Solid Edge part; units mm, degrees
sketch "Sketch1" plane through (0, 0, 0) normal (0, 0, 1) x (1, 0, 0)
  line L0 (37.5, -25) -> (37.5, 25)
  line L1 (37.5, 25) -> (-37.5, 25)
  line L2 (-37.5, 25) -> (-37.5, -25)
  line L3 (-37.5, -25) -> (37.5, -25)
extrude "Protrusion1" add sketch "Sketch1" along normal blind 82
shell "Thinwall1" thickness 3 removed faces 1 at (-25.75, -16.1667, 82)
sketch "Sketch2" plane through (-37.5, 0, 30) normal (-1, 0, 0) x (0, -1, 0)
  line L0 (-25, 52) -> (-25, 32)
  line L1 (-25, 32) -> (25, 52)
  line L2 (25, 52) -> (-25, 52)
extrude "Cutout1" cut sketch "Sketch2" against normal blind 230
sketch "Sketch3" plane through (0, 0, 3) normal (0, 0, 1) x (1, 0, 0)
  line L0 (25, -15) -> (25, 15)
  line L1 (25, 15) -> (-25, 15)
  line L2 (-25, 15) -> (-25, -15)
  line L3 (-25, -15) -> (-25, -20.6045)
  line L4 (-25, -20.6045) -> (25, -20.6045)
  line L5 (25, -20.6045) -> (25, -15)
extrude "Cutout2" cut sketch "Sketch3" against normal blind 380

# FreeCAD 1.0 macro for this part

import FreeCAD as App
import Part
import Sketcher
from FreeCAD import Vector
Q = App.Units.Quantity


def faces_at(feature, points):
    """Names of the faces that lie closest to the given points."""
    faces = feature.Shape.Faces
    near = lambda p: min(range(len(faces)), key=lambda i: faces[i].distToShape(Part.Vertex(*p))[0])
    return sorted({f"Face{near(p) + 1}" for p in points})

doc = App.newDocument("Part")
body = doc.addObject("PartDesign::Body", "Body")

sketch1 = body.newObject("Sketcher::SketchObject", "Sketch")
sketch1.AttachmentSupport = (doc.getObject("XY_Plane"), [""])
sketch1.MapMode = "FlatFace"
sketch1.addGeometry([
    Part.LineSegment(Vector(-37.5, -25, 0), Vector(37.5, -25, 0)),
    Part.LineSegment(Vector(37.5, -25, 0), Vector(37.5, 25, 0)),
    Part.LineSegment(Vector(37.5, 25, 0), Vector(-37.5, 25, 0)),
    Part.LineSegment(Vector(-37.5, 25, 0), Vector(-37.5, -25, 0)),
], False)
sketch1.addConstraint([
    Sketcher.Constraint("Coincident", 0, 2, 1, 1),
    Sketcher.Constraint("Coincident", 1, 2, 2, 1),
    Sketcher.Constraint("Coincident", 2, 2, 3, 1),
    Sketcher.Constraint("Coincident", 3, 2, 0, 1),
    Sketcher.Constraint("Horizontal", 0),
    Sketcher.Constraint("Vertical", 1),
    Sketcher.Constraint("Horizontal", 2),
    Sketcher.Constraint("Vertical", 3),
    Sketcher.Constraint("Symmetric", 0, 2, 2, 2, -1, 1),
    Sketcher.Constraint("DistanceX", 0, 1, 0, 2, Q("75 mm")),
    Sketcher.Constraint("DistanceY", 1, 1, 1, 2, Q("50 mm")),
])
pad1 = body.newObject("PartDesign::Pad", "Pad")
pad1.Profile = sketch1
pad1.Length = 82
doc.recompute()

thickness = body.newObject("PartDesign::Thickness", "Thickness")
thickness.Base = (pad1, faces_at(pad1, [(-25.75, -16.167, 82)]))
thickness.Value = 3
thickness.Reversed = True
thickness.Join = "Intersection"

sketch2 = body.newObject("Sketcher::SketchObject", "Sketch001")
sketch2.AttachmentSupport = (doc.getObject("YZ_Plane"), [""])
sketch2.MapMode = "FlatFace"
sketch2.AttachmentOffset = App.Placement(Vector(0, 0, -37.5), App.Rotation())
sketch2.addGeometry([
    Part.LineSegment(Vector(-25, 82, 0), Vector(25, 82, 0)),
    Part.LineSegment(Vector(25, 82, 0), Vector(25, 62, 0)),
    Part.LineSegment(Vector(25, 62, 0), Vector(-25, 82, 0)),
], False)
sketch2.addConstraint([
    Sketcher.Constraint("Coincident", 0, 2, 1, 1),
    Sketcher.Constraint("Coincident", 1, 2, 2, 1),
    Sketcher.Constraint("Coincident", 2, 2, 0, 1),
    Sketcher.Constraint("Horizontal", 0),
    Sketcher.Constraint("Vertical", 1),
    Sketcher.Constraint("DistanceX", 0, 1, 0, 2, Q("50 mm")),
    Sketcher.Constraint("DistanceY", 1, 2, 1, 1, Q("20 mm")),
    Sketcher.Constraint("DistanceX", -1, 1, 0, 2, Q("25 mm")),
    Sketcher.Constraint("DistanceY", -1, 1, 0, 2, Q("82 mm")),
])
pocket1 = body.newObject("PartDesign::Pocket", "Pocket")
pocket1.Profile = sketch2
pocket1.Length = 230
pocket1.Reversed = True

sketch3 = body.newObject("Sketcher::SketchObject", "Sketch002")
sketch3.AttachmentSupport = (doc.getObject("XY_Plane"), [""])
sketch3.MapMode = "FlatFace"
sketch3.AttachmentOffset = App.Placement(Vector(0, 0, 3), App.Rotation())
sketch3.addGeometry([
    Part.LineSegment(Vector(25, -20.6045, 0), Vector(25, 15, 0)),
    Part.LineSegment(Vector(25, 15, 0), Vector(-25, 15, 0)),
    Part.LineSegment(Vector(-25, 15, 0), Vector(-25, -20.6045, 0)),
    Part.LineSegment(Vector(-25, -20.6045, 0), Vector(25, -20.6045, 0)),
], False)
sketch3.addConstraint([
    Sketcher.Constraint("Coincident", 0, 2, 1, 1),
    Sketcher.Constraint("Coincident", 1, 2, 2, 1),
    Sketcher.Constraint("Coincident", 2, 2, 3, 1),
    Sketcher.Constraint("Coincident", 3, 2, 0, 1),
    Sketcher.Constraint("Vertical", 0),
    Sketcher.Constraint("Horizontal", 1),
    Sketcher.Constraint("Vertical", 2),
    Sketcher.Constraint("Horizontal", 3),
    Sketcher.Constraint("DistanceX", 1, 2, 1, 1, Q("50 mm")),
    Sketcher.Constraint("DistanceX", -1, 1, 0, 2, Q("25 mm")),
    Sketcher.Constraint("DistanceY", -1, 1, 0, 2, Q("15 mm")),
    Sketcher.Constraint("DistanceY", 0, 1, 0, 2, Q("35.6045 mm")),
])
pocket2 = body.newObject("PartDesign::Pocket", "Pocket001")
pocket2.Profile = sketch3
pocket2.Length = 380

doc.recompute()
